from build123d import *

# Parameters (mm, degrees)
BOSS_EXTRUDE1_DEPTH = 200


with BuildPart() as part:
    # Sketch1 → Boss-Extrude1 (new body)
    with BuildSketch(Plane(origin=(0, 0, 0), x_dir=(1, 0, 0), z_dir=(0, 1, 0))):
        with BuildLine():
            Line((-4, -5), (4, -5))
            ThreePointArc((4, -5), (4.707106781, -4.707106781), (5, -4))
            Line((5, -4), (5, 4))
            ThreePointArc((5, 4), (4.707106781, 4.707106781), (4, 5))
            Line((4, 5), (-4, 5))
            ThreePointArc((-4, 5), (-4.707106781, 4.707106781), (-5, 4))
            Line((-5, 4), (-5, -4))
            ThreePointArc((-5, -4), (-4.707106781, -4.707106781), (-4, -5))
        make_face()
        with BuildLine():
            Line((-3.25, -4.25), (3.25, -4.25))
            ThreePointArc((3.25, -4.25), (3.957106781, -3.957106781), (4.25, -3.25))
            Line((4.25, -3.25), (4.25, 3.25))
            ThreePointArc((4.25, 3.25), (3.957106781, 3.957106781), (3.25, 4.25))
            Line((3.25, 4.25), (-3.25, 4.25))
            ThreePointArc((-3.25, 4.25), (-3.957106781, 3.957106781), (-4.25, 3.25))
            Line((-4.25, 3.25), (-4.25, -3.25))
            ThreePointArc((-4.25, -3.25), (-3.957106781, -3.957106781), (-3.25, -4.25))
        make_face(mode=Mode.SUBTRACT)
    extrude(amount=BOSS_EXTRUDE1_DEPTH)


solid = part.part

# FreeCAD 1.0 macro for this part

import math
import FreeCAD as App
import Part
import Sketcher
from FreeCAD import Vector

doc = App.newDocument("Part")
params = doc.addObject("Spreadsheet::Sheet", "Params")
for row, (alias, value) in enumerate([
    ("sketch1_radius", "1 mm"),
    ("sketch1_width", "8 mm"),
    ("sketch1_width2", "6.5 mm"),
    ("pad1_length", "200 mm"),
], start=1):
    params.set(f"A{row}", alias)
    params.set(f"B{row}", "=" + value)
    params.setAlias(f"B{row}", alias)

body = doc.addObject("PartDesign::Body", "Body")

sketch1 = doc.addObject("Sketcher::SketchObject", "Sketch")
body.addObject(sketch1)
sketch1.AttachmentSupport = (doc.XZ_Plane, [""])
sketch1.MapMode = "FlatFace"
sketch1.addGeometry([
    Part.LineSegment(Vector(-4, 5, 0), Vector(4, 5, 0)),
    Part.ArcOfCircle(Part.Circle(Vector(4, 4, 0), Vector(0, 0, 1), 1), math.radians(0), math.radians(90)),
    Part.LineSegment(Vector(5, 4, 0), Vector(5, -4, 0)),
    Part.ArcOfCircle(Part.Circle(Vector(4, -4, 0), Vector(0, 0, 1), 1), math.radians(-90), math.radians(0)),
    Part.LineSegment(Vector(4, -5, 0), Vector(-4, -5, 0)),
    Part.ArcOfCircle(Part.Circle(Vector(-4, -4, 0), Vector(0, 0, 1), 1), math.radians(-180), math.radians(-90)),
    Part.LineSegment(Vector(-5, -4, 0), Vector(-5, 4, 0)),
    Part.ArcOfCircle(Part.Circle(Vector(-4, 4, 0), Vector(0, 0, 1), 1), math.radians(90), math.radians(180)),
    Part.LineSegment(Vector(3.2, 4.2, 0), Vector(-3.2, 4.2, 0)),
    Part.ArcOfCircle(Part.Circle(Vector(-3.2, 3.2, 0), Vector(0, 0, 1), 1), math.radians(90), math.radians(180)),
    Part.LineSegment(Vector(-4.2, 3.2, 0), Vector(-4.2, -3.2, 0)),
    Part.ArcOfCircle(Part.Circle(Vector(-3.2, -3.2, 0), Vector(0, 0, 1), 1), math.radians(-180), math.radians(-90)),
    Part.LineSegment(Vector(-3.2, -4.2, 0), Vector(3.2, -4.2, 0)),
    Part.ArcOfCircle(Part.Circle(Vector(3.2, -3.2, 0), Vector(0, 0, 1), 1), math.radians(-90), math.radians(0)),
    Part.LineSegment(Vector(4.2, -3.2, 0), Vector(4.2, 3.2, 0)),
    Part.ArcOfCircle(Part.Circle(Vector(3.2, 3.2, 0), Vector(0, 0, 1), 1), math.radians(0), math.radians(90)),
], False)
sketch1.addConstraint([
    Sketcher.Constraint("Tangent", 0, 2, 1, 2),
    Sketcher.Constraint("Tangent", 1, 1, 2, 1),
    Sketcher.Constraint("Tangent", 2, 2, 3, 2),
    Sketcher.Constraint("Tangent", 3, 1, 4, 1),
    Sketcher.Constraint("Tangent", 4, 2, 5, 2),
    Sketcher.Constraint("Tangent", 5, 1, 6, 1),
    Sketcher.Constraint("Tangent", 6, 2, 7, 2),
    Sketcher.Constraint("Tangent", 7, 1, 0, 1),
    Sketcher.Constraint("Tangent", 8, 2, 9, 1),
    Sketcher.Constraint("Tangent", 9, 2, 10, 1),
    Sketcher.Constraint("Tangent", 10, 2, 11, 1),
    Sketcher.Constraint("Tangent", 11, 2, 12, 1),
    Sketcher.Constraint("Tangent", 12, 2, 13, 1),
    Sketcher.Constraint("Tangent", 13, 2, 14, 1),
    Sketcher.Constraint("Tangent", 14, 2, 15, 1),
    Sketcher.Constraint("Tangent", 15, 2, 8, 1),
    Sketcher.Constraint("Horizontal", 0),
    Sketcher.Constraint("Vertical", 2),
    Sketcher.Constraint("Horizontal", 4),
    Sketcher.Constraint("Vertical", 6),
    Sketcher.Constraint("Horizontal", 8),
    Sketcher.Constraint("Vertical", 10),
    Sketcher.Constraint("Horizontal", 12),
    Sketcher.Constraint("Vertical", 14),
    Sketcher.Constraint("Equal", 1, 3),
    Sketcher.Constraint("Equal", 3, 5),
    Sketcher.Constraint("Equal", 5, 7),
    Sketcher.Constraint("Equal", 7, 9),
    Sketcher.Constraint("Equal", 9, 11),
    Sketcher.Constraint("Equal", 11, 13),
    Sketcher.Constraint("Equal", 13, 15),
    Sketcher.Constraint("Symmetric", 1, 3, 5, 3, -1, 1),
    Sketcher.Constraint("Symmetric", 9, 3, 13, 3, -1, 1),
    Sketcher.Constraint("Equal", 4, 2),
    Sketcher.Constraint("Equal", 12, 10),
    Sketcher.Constraint("Radius", 1, 1.0),
    Sketcher.Constraint("DistanceX", 0, 1, 0, 2, 8.0),
    Sketcher.Constraint("DistanceX", 8, 2, 8, 1, 6.5),
])
sketch1.setExpression("Constraints[35]", "Params.sketch1_radius")
sketch1.setExpression("Constraints[36]", "Params.sketch1_width")
sketch1.setExpression("Constraints[37]", "Params.sketch1_width2")
pad1 = doc.addObject("PartDesign::Pad", "Pad")
body.addObject(pad1)
pad1.Profile = sketch1
pad1.setExpression("Length", "Params.pad1_length")
pad1.Reversed = True

doc.recompute()
